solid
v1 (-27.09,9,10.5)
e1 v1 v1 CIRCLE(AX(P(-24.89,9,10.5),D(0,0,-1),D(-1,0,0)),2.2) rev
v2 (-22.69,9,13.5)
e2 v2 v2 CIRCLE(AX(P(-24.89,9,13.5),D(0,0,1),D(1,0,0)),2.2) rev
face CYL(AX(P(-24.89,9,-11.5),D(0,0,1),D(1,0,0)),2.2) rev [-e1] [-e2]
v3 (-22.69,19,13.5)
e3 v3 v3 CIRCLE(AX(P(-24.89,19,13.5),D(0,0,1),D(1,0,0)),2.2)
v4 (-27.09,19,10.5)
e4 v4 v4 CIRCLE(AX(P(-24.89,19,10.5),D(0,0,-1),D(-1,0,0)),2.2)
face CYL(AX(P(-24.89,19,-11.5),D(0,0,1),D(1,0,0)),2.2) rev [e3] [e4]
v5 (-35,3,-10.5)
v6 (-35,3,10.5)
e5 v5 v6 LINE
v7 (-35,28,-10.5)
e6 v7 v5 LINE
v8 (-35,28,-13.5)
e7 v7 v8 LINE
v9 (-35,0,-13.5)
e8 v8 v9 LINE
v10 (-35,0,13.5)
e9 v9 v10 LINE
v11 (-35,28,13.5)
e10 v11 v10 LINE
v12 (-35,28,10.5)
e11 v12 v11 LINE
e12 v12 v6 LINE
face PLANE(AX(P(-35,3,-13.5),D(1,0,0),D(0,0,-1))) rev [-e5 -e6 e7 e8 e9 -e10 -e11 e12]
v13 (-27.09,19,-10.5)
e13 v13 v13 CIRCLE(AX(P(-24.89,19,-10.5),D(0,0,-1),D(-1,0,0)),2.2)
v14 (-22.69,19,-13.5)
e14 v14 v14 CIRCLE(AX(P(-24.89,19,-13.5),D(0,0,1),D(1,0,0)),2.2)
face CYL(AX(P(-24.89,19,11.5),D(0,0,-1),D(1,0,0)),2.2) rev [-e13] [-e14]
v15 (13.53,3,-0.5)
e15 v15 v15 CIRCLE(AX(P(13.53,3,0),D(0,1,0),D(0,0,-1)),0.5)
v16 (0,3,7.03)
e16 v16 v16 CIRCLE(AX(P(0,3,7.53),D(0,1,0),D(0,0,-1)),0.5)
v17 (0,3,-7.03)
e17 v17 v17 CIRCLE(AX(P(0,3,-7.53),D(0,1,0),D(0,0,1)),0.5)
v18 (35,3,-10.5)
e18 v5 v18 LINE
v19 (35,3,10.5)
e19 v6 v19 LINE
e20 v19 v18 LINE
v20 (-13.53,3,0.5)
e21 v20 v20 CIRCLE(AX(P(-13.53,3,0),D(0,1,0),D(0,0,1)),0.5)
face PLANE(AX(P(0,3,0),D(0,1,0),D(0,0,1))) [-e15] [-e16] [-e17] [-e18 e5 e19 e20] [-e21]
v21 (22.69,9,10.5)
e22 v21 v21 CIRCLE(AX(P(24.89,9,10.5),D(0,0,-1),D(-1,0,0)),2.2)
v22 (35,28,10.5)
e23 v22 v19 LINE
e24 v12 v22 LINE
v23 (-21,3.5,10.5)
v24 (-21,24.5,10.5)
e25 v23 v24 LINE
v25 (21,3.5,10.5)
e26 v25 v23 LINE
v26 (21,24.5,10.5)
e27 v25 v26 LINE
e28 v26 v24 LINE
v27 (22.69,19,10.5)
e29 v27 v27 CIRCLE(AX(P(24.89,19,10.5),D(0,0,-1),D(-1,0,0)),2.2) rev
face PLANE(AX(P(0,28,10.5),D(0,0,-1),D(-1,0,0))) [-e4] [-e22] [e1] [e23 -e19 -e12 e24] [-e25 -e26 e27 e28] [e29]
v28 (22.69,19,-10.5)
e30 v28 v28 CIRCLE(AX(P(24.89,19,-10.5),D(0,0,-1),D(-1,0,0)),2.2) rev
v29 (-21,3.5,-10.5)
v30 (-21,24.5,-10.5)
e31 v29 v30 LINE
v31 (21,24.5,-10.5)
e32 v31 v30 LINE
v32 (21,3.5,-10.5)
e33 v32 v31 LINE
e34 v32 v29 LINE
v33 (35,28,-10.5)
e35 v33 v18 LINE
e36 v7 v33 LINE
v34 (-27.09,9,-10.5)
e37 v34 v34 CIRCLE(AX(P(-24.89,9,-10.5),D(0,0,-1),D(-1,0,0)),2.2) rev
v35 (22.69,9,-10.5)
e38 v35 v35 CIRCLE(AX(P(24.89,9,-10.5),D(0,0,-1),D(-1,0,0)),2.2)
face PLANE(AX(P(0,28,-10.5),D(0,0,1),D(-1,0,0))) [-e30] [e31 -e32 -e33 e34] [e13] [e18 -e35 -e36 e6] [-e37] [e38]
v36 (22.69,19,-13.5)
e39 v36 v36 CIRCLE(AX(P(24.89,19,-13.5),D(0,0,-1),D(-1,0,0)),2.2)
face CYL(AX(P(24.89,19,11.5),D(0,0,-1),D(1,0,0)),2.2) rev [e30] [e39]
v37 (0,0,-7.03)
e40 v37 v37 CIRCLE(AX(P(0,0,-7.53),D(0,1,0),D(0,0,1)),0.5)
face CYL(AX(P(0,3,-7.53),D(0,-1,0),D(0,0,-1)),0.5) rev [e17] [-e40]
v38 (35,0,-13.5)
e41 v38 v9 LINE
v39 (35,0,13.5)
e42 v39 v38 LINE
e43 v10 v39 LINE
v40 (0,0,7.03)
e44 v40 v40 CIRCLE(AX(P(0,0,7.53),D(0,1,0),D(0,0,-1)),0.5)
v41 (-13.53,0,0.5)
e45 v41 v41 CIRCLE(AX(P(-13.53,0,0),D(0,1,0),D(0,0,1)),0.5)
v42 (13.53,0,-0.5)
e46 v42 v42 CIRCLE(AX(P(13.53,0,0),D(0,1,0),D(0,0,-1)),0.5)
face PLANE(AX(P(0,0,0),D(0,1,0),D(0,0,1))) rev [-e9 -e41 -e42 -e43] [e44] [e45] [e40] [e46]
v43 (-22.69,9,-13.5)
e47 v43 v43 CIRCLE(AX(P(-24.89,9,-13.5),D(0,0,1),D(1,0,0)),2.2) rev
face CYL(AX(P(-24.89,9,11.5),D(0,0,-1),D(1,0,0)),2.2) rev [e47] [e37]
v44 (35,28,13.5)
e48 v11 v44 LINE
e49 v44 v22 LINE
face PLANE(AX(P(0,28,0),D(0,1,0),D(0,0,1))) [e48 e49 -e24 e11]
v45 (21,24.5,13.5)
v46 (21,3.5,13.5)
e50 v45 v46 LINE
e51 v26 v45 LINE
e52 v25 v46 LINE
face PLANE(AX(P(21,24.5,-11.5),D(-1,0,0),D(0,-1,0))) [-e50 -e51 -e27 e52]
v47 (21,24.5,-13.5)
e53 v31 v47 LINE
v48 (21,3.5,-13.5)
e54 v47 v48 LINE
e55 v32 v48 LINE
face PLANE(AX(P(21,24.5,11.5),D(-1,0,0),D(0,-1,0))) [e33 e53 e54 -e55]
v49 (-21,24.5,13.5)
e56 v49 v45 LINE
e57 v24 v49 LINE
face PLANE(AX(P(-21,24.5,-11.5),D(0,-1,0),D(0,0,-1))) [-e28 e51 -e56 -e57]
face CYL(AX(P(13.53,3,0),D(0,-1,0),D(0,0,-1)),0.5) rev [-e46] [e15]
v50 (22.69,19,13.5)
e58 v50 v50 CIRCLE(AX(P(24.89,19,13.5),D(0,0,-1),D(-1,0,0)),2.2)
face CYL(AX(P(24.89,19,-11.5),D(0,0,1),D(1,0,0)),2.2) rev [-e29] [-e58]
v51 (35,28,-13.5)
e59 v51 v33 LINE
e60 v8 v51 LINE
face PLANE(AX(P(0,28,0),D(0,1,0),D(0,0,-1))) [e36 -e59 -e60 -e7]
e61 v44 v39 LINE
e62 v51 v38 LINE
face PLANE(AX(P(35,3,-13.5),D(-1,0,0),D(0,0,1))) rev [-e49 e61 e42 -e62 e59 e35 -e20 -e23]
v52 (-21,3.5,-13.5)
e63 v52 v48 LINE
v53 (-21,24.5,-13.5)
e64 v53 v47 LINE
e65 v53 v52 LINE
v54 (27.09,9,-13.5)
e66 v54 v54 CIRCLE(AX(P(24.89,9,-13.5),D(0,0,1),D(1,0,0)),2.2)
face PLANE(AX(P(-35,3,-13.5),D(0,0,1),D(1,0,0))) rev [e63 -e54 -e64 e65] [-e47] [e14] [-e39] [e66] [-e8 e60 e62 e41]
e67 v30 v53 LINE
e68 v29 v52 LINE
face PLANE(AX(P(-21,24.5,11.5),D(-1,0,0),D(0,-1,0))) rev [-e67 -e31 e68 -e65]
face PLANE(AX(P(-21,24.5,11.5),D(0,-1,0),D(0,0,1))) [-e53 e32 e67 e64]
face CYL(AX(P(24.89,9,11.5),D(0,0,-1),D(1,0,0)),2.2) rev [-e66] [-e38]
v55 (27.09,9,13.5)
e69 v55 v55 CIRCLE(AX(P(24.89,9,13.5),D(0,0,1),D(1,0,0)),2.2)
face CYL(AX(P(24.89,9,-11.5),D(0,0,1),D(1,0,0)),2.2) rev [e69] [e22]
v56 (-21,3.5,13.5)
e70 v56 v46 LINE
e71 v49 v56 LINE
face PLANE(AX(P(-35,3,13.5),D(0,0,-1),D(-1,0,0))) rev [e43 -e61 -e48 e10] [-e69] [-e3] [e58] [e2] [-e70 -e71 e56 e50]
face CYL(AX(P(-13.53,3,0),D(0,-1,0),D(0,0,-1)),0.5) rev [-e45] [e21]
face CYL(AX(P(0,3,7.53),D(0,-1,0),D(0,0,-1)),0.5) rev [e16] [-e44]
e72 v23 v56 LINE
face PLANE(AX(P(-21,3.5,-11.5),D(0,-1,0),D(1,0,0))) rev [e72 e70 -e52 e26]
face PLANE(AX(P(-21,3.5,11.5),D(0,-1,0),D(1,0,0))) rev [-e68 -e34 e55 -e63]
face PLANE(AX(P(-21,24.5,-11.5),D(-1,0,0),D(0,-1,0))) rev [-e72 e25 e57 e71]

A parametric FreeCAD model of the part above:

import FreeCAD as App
import Part
import Sketcher
from FreeCAD import Vector
Q = App.Units.Quantity


def add_polygon(sketch, points):
    """Adds a closed chain of lines whose ends are joined by coincident constraints."""
    first, n = sketch.GeometryCount, len(points)
    for a, b in zip(points, points[1:] + points[:1]):
        sketch.addGeometry(Part.LineSegment(App.Vector(*a, 0), App.Vector(*b, 0)), False)
    for i in range(n):
        sketch.addConstraint(Sketcher.Constraint("Coincident", first + i, 2, first + (i + 1) % n, 1))

doc = App.newDocument("Part")
params = doc.addObject("Spreadsheet::Sheet", "Params")
for row, (alias, value) in enumerate([
    ("sketch1_diameter", "1 mm"),
    ("sketch1_width", "70 mm"),
    ("sketch1_height", "27 mm"),
    ("pad1_length", "3 mm"),
    ("sketch2_width", "70 mm"),
    ("sketch2_height", "3 mm"),
    ("pad2_length", "25 mm"),
    ("sketch3_diameter", "4.4 mm"),
    ("sketch3_width", "42 mm"),
    ("sketch3_height", "21 mm"),
    ("pocket1_length", "25 mm"),
], start=1):
    params.set(f"A{row}", alias)
    params.set(f"B{row}", "=" + value)
    params.setAlias(f"B{row}", alias)

body = doc.addObject("PartDesign::Body", "Body")

# Sketch on XZ plane
sketch1 = doc.addObject("Sketcher::SketchObject", "Sketch")
body.addObject(sketch1)
sketch1.AttachmentSupport = (doc.XZ_Plane, [""])
sketch1.MapMode = "FlatFace"
add_polygon(sketch1, [(-35, -13.5), (-35, 13.5), (35, 13.5), (35, -13.5)])  # lines 0-3
sketch1.addGeometry(Part.Circle(Vector(0, 7.53, 0), Vector(0, 0, 1), 0.5), False)  # 4
sketch1.addGeometry(Part.Circle(Vector(-13.53, 0, 0), Vector(0, 0, 1), 0.5), False)  # 5
sketch1.addGeometry(Part.Circle(Vector(13.53, 0, 0), Vector(0, 0, 1), 0.5), False)  # 6
sketch1.addGeometry(Part.Circle(Vector(0, -7.53, 0), Vector(0, 0, 1), 0.5), False)  # 7
sketch1.addConstraint(Sketcher.Constraint("Vertical", 0))
sketch1.addConstraint(Sketcher.Constraint("Horizontal", 1))
sketch1.addConstraint(Sketcher.Constraint("Vertical", 2))
sketch1.addConstraint(Sketcher.Constraint("Horizontal", 3))
sketch1.addConstraint(Sketcher.Constraint("Equal", 4, 5))
sketch1.addConstraint(Sketcher.Constraint("Equal", 5, 6))
sketch1.addConstraint(Sketcher.Constraint("Equal", 6, 7))
sketch1.addConstraint(Sketcher.Constraint("Symmetric", 5, 3, 6, 3, -1, 1))
sketch1.addConstraint(Sketcher.Constraint("Symmetric", 4, 3, 7, 3, -1, 1))
sketch1.addConstraint(Sketcher.Constraint("Symmetric", 0, 2, 2, 2, -1, 1))
sketch1.addConstraint(Sketcher.Constraint("PointOnObject", 4, 3, -2))
sketch1.addConstraint(Sketcher.Constraint("PointOnObject", 5, 3, -1))
sketch1.addConstraint(Sketcher.Constraint("Diameter", 4, Q("1 mm")))
sketch1.addConstraint(Sketcher.Constraint("DistanceX", 1, 1, 1, 2, Q("70 mm")))
sketch1.addConstraint(Sketcher.Constraint("DistanceY", 0, 1, 0, 2, Q("27 mm")))
sketch1.addConstraint(Sketcher.Constraint("DistanceY", -1, 1, 4, 3, Q("7.53 mm")))
sketch1.addConstraint(Sketcher.Constraint("DistanceX", 5, 3, -1, 1, Q("13.53 mm")))
sketch1.setExpression("Constraints[16]", "Params.sketch1_diameter")
sketch1.setExpression("Constraints[17]", "Params.sketch1_width")
sketch1.setExpression("Constraints[18]", "Params.sketch1_height")
pad1 = doc.addObject("PartDesign::Pad", "Pad")
body.addObject(pad1)
pad1.Profile = sketch1
pad1.setExpression("Length", "Params.pad1_length")
pad1.Reversed = True

# Sketch on XZ plane
sketch2 = doc.addObject("Sketcher::SketchObject", "Sketch001")
body.addObject(sketch2)
sketch2.AttachmentSupport = (doc.XZ_Plane, [""])
sketch2.MapMode = "FlatFace"
sketch2.AttachmentOffset = App.Placement(Vector(0, 0, -3), App.Rotation())
add_polygon(sketch2, [(-35, 10.5), (-35, 13.5), (35, 13.5), (35, 10.5)])  # lines 0-3
sketch2.addConstraint(Sketcher.Constraint("Vertical", 0))
sketch2.addConstraint(Sketcher.Constraint("Horizontal", 1))
sketch2.addConstraint(Sketcher.Constraint("Vertical", 2))
sketch2.addConstraint(Sketcher.Constraint("Horizontal", 3))
sketch2.addConstraint(Sketcher.Constraint("DistanceX", 1, 1, 1, 2, Q("70 mm")))
sketch2.addConstraint(Sketcher.Constraint("DistanceY", 0, 1, 0, 2, Q("3 mm")))
sketch2.addConstraint(Sketcher.Constraint("DistanceX", 0, 2, -1, 1, Q("35 mm")))
sketch2.addConstraint(Sketcher.Constraint("DistanceY", -1, 1, 0, 2, Q("13.5 mm")))
sketch2.setExpression("Constraints[8]", "Params.sketch2_width")
sketch2.setExpression("Constraints[9]", "Params.sketch2_height")
pad2 = doc.addObject("PartDesign::Pad", "Pad001")
body.addObject(pad2)
pad2.Profile = sketch2
pad2.setExpression("Length", "Params.pad2_length")
pad2.Reversed = True

# Sketch on XY plane
sketch3 = doc.addObject("Sketcher::SketchObject", "Sketch002")
body.addObject(sketch3)
sketch3.AttachmentSupport = (doc.XY_Plane, [""])
sketch3.MapMode = "FlatFace"
sketch3.AttachmentOffset = App.Placement(Vector(0, 0, 13.5), App.Rotation())
sketch3.addGeometry(Part.Circle(Vector(-24.89, 9, 0), Vector(0, 0, 1), 2.2), False)  # 0
sketch3.addGeometry(Part.Circle(Vector(-24.89, 19, 0), Vector(0, 0, 1), 2.2), False)  # 1
add_polygon(sketch3, [(-21, 24.5), (-21, 3.5), (21, 3.5), (21, 24.5)])  # lines 2-5
sketch3.addGeometry(Part.Circle(Vector(24.89, 19, 0), Vector(0, 0, 1), 2.2), False)  # 6
sketch3.addGeometry(Part.Circle(Vector(24.89, 9, 0), Vector(0, 0, 1), 2.2), False)  # 7
sketch3.addConstraint(Sketcher.Constraint("Vertical", 2))
sketch3.addConstraint(Sketcher.Constraint("Horizontal", 3))
sketch3.addConstraint(Sketcher.Constraint("Vertical", 4))
sketch3.addConstraint(Sketcher.Constraint("Horizontal", 5))
sketch3.addConstraint(Sketcher.Constraint("Equal", 0, 1))
sketch3.addConstraint(Sketcher.Constraint("Equal", 1, 6))
sketch3.addConstraint(Sketcher.Constraint("Equal", 6, 7))
sketch3.addConstraint(Sketcher.Constraint("Symmetric", 1, 3, 6, 3, -2))
sketch3.addConstraint(Sketcher.Constraint("Symmetric", 0, 3, 7, 3, -2))
sketch3.addConstraint(Sketcher.Constraint("Vertical", 0, 3, 1, 3))
sketch3.addConstraint(Sketcher.Constraint("Diameter", 0, Q("4.4 mm")))
sketch3.addConstraint(Sketcher.Constraint("DistanceX", 3, 1, 3, 2, Q("42 mm")))
sketch3.addConstraint(Sketcher.Constraint("DistanceY", 2, 2, 2, 1, Q("21 mm")))
sketch3.addConstraint(Sketcher.Constraint("DistanceY", -1, 1, 0, 3, Q("9 mm")))
sketch3.addConstraint(Sketcher.Constraint("DistanceY", -1, 1, 1, 3, Q("19 mm")))
sketch3.addConstraint(Sketcher.Constraint("DistanceX", 2, 2, -1, 1, Q("21 mm")))
sketch3.addConstraint(Sketcher.Constraint("DistanceY", -1, 1, 2, 2, Q("3.5 mm")))
sketch3.addConstraint(Sketcher.Constraint("DistanceX", 0, 3, -1, 1, Q("24.89 mm")))
sketch3.setExpression("Constraints[14]", "Params.sketch3_diameter")
sketch3.setExpression("Constraints[15]", "Params.sketch3_width")
sketch3.setExpression("Constraints[16]", "Params.sketch3_height")
pocket1 = doc.addObject("PartDesign::Pocket", "Pocket")
body.addObject(pocket1)
pocket1.Profile = sketch3
pocket1.setExpression("Length", "Params.pocket1_length")
body2 = doc.addObject("PartDesign::Body", "Body001")
doc.recompute()

body2.BaseFeature = body
doc.recompute()

mirroring = doc.addObject("Part::Mirroring", "Mirroring")
mirroring.Source = body
mirroring.Base = Vector(0, 0, 0)
mirroring.Normal = Vector(0, 0, 1)
body3 = doc.addObject("PartDesign::Body", "Body002")
body3.BaseFeature = mirroring
boolean = doc.addObject("PartDesign::Boolean", "Boolean")
body2.addObject(boolean)
boolean.Type = "Fuse"
boolean.addObjects([body3])
doc.recompute()
mirroring.Visibility = False

doc.recompute()
